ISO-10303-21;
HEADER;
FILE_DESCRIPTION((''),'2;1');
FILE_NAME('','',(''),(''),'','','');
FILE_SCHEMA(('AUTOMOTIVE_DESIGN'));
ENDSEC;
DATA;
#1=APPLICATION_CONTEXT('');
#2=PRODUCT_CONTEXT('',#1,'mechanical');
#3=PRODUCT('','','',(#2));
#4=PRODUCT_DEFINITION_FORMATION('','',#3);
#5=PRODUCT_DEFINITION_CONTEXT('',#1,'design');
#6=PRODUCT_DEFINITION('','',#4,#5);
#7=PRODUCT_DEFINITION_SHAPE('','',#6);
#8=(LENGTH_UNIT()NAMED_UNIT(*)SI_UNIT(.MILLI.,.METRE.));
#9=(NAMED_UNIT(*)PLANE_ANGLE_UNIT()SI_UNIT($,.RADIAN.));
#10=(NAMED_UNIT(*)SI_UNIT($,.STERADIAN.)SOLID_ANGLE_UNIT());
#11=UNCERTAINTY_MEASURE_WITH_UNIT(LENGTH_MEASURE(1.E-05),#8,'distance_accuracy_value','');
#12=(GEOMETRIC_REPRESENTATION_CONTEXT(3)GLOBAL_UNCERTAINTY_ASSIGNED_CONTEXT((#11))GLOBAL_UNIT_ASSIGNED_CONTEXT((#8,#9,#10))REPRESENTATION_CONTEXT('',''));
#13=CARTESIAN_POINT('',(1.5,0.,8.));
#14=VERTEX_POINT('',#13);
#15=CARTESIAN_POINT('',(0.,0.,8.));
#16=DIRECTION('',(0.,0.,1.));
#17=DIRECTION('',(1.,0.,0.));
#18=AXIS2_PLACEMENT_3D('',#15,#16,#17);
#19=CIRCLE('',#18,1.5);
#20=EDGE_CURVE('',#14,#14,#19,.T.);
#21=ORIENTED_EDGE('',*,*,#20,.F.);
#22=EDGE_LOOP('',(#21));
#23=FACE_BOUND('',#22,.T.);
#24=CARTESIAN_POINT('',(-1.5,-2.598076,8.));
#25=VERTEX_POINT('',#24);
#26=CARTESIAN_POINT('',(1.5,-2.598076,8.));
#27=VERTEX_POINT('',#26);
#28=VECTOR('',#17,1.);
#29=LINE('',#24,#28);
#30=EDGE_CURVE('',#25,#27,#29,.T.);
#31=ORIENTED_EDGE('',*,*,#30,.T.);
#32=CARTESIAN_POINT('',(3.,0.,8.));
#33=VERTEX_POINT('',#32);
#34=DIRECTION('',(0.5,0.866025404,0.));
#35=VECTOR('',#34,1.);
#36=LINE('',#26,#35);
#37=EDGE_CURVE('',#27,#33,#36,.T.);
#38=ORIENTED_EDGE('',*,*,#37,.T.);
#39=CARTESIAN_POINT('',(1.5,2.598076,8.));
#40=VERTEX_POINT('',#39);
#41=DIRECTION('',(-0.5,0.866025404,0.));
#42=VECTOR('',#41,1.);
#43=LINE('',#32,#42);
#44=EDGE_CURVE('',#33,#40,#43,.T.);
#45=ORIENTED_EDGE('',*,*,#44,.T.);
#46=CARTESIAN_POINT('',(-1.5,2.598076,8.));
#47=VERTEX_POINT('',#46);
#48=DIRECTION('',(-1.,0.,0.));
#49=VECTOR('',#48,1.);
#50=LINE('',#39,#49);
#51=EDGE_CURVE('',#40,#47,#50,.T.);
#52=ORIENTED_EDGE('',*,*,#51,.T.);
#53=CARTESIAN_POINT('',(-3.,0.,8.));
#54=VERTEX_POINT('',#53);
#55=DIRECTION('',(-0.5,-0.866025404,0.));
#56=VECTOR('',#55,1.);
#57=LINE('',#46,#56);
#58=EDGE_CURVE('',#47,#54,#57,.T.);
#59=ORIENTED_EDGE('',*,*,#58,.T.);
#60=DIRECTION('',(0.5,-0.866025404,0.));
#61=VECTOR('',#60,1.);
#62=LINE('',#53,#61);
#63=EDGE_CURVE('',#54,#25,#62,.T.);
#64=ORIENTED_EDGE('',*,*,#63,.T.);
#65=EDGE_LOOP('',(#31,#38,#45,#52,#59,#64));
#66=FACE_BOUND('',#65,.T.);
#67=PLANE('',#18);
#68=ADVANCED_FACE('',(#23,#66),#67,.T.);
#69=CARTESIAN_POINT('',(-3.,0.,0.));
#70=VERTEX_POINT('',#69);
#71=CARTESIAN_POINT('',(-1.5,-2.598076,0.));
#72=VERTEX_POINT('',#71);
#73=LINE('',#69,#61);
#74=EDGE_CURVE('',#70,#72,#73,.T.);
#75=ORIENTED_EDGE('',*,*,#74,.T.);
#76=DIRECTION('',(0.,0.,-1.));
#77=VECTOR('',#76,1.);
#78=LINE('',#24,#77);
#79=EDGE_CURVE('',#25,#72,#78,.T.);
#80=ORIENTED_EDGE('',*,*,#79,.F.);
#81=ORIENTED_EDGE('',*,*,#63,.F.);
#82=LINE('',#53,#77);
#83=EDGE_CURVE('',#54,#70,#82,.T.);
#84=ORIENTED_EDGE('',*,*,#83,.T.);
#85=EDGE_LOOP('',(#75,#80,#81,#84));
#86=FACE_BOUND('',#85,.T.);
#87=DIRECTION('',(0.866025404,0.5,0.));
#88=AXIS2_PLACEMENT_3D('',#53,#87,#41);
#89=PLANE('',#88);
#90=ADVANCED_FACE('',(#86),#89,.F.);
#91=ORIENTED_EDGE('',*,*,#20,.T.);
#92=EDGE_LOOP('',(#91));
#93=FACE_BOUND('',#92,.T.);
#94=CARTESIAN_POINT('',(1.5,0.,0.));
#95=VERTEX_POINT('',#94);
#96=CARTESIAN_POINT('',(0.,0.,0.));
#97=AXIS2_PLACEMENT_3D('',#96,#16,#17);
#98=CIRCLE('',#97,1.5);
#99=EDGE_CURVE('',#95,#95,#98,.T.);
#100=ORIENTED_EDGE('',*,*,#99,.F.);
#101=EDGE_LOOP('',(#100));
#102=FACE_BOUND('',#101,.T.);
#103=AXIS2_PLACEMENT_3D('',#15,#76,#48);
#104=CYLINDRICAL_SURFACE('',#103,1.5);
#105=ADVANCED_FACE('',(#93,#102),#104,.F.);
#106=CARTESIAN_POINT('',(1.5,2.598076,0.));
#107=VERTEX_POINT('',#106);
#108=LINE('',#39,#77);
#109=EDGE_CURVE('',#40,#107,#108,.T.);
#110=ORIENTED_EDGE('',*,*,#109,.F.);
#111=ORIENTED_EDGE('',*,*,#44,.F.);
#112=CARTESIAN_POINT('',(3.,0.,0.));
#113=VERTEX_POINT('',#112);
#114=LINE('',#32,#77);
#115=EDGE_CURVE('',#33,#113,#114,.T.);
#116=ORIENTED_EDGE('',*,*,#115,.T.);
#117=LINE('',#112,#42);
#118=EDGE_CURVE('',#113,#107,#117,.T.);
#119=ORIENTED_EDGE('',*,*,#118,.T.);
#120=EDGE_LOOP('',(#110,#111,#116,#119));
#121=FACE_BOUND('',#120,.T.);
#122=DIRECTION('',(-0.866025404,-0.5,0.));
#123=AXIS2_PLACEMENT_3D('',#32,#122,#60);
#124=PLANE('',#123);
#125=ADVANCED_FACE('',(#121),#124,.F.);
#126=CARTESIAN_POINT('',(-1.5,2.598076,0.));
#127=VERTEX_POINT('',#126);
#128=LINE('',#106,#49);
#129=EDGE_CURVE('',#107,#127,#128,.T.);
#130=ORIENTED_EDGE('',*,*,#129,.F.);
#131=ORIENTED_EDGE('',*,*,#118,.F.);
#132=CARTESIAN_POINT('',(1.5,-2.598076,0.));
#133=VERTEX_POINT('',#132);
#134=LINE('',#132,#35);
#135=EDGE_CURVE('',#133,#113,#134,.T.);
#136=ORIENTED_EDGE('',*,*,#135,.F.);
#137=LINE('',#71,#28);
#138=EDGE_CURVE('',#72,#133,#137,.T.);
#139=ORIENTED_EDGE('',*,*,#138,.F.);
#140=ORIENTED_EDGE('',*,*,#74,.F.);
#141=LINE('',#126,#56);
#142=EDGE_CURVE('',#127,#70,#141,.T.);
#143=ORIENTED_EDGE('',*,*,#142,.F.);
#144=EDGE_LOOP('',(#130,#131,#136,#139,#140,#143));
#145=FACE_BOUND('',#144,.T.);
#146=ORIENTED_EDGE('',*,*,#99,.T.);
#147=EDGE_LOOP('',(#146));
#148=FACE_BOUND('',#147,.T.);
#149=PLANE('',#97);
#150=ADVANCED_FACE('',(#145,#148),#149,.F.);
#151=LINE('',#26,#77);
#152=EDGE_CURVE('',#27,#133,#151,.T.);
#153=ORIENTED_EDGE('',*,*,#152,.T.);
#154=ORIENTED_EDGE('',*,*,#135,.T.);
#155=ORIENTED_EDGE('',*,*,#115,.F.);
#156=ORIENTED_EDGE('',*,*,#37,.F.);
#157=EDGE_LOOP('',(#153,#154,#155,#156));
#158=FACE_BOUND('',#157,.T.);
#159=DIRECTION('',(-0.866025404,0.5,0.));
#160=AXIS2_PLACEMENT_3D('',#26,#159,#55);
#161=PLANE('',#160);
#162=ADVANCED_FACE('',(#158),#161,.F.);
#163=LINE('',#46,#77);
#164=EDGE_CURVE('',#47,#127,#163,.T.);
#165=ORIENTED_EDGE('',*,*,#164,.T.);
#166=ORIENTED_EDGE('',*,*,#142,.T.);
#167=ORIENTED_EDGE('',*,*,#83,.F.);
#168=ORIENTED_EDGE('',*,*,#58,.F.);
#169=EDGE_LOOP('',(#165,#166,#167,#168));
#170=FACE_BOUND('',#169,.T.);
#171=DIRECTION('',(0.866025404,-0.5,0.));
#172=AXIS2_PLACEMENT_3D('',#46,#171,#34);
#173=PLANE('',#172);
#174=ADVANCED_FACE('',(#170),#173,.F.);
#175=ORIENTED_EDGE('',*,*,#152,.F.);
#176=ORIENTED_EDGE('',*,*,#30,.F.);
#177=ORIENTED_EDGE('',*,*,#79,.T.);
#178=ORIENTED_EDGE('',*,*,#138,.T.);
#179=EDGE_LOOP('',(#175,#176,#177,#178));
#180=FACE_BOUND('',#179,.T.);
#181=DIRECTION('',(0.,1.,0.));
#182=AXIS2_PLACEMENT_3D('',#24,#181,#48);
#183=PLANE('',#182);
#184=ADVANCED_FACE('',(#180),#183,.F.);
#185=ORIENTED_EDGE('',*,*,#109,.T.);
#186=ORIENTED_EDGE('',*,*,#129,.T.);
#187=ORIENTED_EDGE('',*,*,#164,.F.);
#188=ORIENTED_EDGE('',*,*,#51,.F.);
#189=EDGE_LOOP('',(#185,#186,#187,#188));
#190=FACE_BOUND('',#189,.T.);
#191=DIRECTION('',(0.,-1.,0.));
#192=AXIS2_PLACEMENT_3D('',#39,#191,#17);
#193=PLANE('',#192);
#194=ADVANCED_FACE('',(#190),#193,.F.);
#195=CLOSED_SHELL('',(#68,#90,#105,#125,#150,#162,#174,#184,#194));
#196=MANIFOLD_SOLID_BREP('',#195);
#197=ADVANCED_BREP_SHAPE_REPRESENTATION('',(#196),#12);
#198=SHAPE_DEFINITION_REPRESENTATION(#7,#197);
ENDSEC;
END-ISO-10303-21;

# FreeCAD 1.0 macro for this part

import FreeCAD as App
import Part
import Sketcher

V = App.Vector
Q = App.Units.Quantity


def add_polygon(sketch, points):
    """Adds a closed chain of lines whose ends are joined by coincident constraints."""
    first, n = sketch.GeometryCount, len(points)
    for a, b in zip(points, points[1:] + points[:1]):
        sketch.addGeometry(Part.LineSegment(App.Vector(*a, 0), App.Vector(*b, 0)), False)
    for i in range(n):
        sketch.addConstraint(Sketcher.Constraint("Coincident", first + i, 2, first + (i + 1) % n, 1))

doc = App.newDocument("Part")
body = doc.addObject("PartDesign::Body", "Body")

# Sketch on XY plane
sketch1 = body.newObject("Sketcher::SketchObject", "Sketch")
sketch1.AttachmentSupport = (doc.getObject("XY_Plane"), [""])
sketch1.MapMode = "FlatFace"
add_polygon(sketch1, [(-1.5, 2.6), (-3, 0), (-1.5, -2.6), (1.5, -2.6), (3, 0), (1.5, 2.6)])  # lines 0-5
sketch1.addGeometry(Part.Circle(V(0, 0, 0), V(0, 0, 1), 1.5), False)  # 6
sketch1.addConstraint([
    Sketcher.Constraint("Horizontal", 2),
    Sketcher.Constraint("Horizontal", 5),
    Sketcher.Constraint("Coincident", 6, 3, -1, 1),
    Sketcher.Constraint("Symmetric", 0, 2, 3, 2, -1, 1),
    Sketcher.Constraint("Symmetric", 1, 2, 4, 2, -1, 1),
    Sketcher.Constraint("PointOnObject", 0, 2, -1),
    Sketcher.Constraint("Parallel", 0, 3),
    Sketcher.Constraint("Vertical", 2, 2, 4, 2),
    Sketcher.Constraint("Diameter", 6, 3.0),
    Sketcher.Constraint("DistanceX", 2, 1, 2, 2, 3.0),
    Sketcher.Constraint("Angle", 0, Q("-120 deg")),
    Sketcher.Constraint("Distance", 0, 3.0),
])
pad1 = body.newObject("PartDesign::Pad", "Pad")
pad1.Profile = sketch1
pad1.Length = 8

doc.recompute()
